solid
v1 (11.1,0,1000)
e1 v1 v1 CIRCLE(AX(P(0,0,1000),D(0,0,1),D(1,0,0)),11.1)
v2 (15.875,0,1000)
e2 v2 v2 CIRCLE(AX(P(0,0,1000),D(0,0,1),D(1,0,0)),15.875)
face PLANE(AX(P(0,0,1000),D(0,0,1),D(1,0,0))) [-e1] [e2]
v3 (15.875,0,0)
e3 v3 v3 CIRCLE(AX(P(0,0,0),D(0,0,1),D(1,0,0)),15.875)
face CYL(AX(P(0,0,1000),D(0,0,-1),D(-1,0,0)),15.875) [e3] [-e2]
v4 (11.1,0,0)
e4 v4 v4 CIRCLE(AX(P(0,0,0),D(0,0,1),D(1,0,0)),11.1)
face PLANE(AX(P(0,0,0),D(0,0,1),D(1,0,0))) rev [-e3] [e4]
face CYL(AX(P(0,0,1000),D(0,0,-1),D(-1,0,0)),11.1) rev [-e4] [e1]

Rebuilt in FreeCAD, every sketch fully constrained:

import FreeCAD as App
import Part
import Sketcher

V = App.Vector
Q = App.Units.Quantity

doc = App.newDocument("Part")
body = doc.addObject("PartDesign::Body", "Body")

# Sketch on XY plane
sketch1 = doc.addObject("Sketcher::SketchObject", "Sketch")
body.addObject(sketch1)
sketch1.AttachmentSupport = (doc.XY_Plane, [""])
sketch1.MapMode = "FlatFace"
sketch1.addGeometry(Part.Circle(V(0, 0, 0), V(0, 0, 1), 16), False)
sketch1.addGeometry(Part.Circle(V(0, 0, 0), V(0, 0, 1), 11), False)
sketch1.addConstraint(Sketcher.Constraint("Coincident", 0, 3, -1, 1))
sketch1.addConstraint(Sketcher.Constraint("Coincident", 1, 3, -1, 1))
sketch1.addConstraint(Sketcher.Constraint("Diameter", 1, Q("22.2 mm")))
sketch1.addConstraint(Sketcher.Constraint("Diameter", 0, Q("31.75 mm")))
pad1 = doc.addObject("PartDesign::Pad", "Pad")
body.addObject(pad1)
pad1.Profile = sketch1
pad1.Length = 1000

doc.recompute()
